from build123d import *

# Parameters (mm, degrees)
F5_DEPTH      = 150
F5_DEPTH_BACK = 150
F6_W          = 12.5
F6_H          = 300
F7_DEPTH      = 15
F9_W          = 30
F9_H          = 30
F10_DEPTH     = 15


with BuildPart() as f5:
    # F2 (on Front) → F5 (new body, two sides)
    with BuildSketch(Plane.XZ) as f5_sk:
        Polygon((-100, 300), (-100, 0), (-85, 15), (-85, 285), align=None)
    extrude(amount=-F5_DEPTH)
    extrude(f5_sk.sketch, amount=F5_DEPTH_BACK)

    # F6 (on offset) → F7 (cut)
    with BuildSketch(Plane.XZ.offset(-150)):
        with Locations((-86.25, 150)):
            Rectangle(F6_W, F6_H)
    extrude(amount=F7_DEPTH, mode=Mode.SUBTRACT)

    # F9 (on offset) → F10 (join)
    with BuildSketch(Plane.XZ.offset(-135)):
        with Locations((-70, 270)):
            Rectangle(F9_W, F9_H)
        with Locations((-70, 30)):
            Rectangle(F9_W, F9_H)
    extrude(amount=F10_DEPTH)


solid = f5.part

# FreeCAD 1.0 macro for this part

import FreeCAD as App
import Part
import Sketcher

V = App.Vector
Q = App.Units.Quantity

doc = App.newDocument("Part")
params = doc.addObject("Spreadsheet::Sheet", "Params")
for row, (alias, value) in enumerate([
    ("sketch1_height", "300 mm"),
    ("sketch1_height2", "270 mm"),
    ("pad1_length", "150 mm"),
    ("pad1_length2", "150 mm"),
    ("sketch2_height", "300 mm"),
    ("sketch2_width", "12.5 mm"),
    ("pocket1_length", "15 mm"),
    ("sketch3_width", "30 mm"),
    ("pad2_length", "15 mm"),
], start=1):
    params.set(f"A{row}", alias)
    params.set(f"B{row}", "=" + value)
    params.setAlias(f"B{row}", alias)

body = doc.addObject("PartDesign::Body", "Body")

sketch1 = body.newObject("Sketcher::SketchObject", "Sketch")
sketch1.AttachmentSupport = (doc.getObject("XZ_Plane"), [""])
sketch1.MapMode = "FlatFace"
sketch1.addGeometry(Part.LineSegment(V(-100, 300, 0), V(-100, 0, 0)), False)
sketch1.addGeometry(Part.LineSegment(V(-100, 0, 0), V(-85, 15, 0)), False)
sketch1.addGeometry(Part.LineSegment(V(-85, 15, 0), V(-85, 285, 0)), False)
sketch1.addGeometry(Part.LineSegment(V(-85, 285, 0), V(-100, 300, 0)), False)
sketch1.addConstraint(Sketcher.Constraint("Coincident", 0, 2, 1, 1))
sketch1.addConstraint(Sketcher.Constraint("Coincident", 1, 2, 2, 1))
sketch1.addConstraint(Sketcher.Constraint("Coincident", 2, 2, 3, 1))
sketch1.addConstraint(Sketcher.Constraint("Coincident", 3, 2, 0, 1))
sketch1.addConstraint(Sketcher.Constraint("Vertical", 0))
sketch1.addConstraint(Sketcher.Constraint("Vertical", 2))
sketch1.addConstraint(Sketcher.Constraint("PointOnObject", 0, 2, -1))
sketch1.addConstraint(Sketcher.Constraint("Perpendicular", 1, 3))
sketch1.addConstraint(Sketcher.Constraint("Equal", 1, 3))
sketch1.addConstraint(Sketcher.Constraint("DistanceY", 0, 2, 0, 1, Q("300 mm")))
sketch1.addConstraint(Sketcher.Constraint("DistanceY", 2, 1, 2, 2, Q("270 mm")))
sketch1.addConstraint(Sketcher.Constraint("DistanceX", 0, 2, -1, 1, Q("100 mm")))
sketch1.setExpression("Constraints[9]", "Params.sketch1_height")
sketch1.setExpression("Constraints[10]", "Params.sketch1_height2")
pad1 = body.newObject("PartDesign::Pad", "Pad")
pad1.Profile = sketch1
pad1.Type = "TwoLengths"
pad1.setExpression("Length", "Params.pad1_length")
pad1.setExpression("Length2", "Params.pad1_length2")
pad1.Reversed = True

sketch2 = body.newObject("Sketcher::SketchObject", "Sketch001")
sketch2.AttachmentSupport = (doc.getObject("XZ_Plane"), [""])
sketch2.MapMode = "FlatFace"
sketch2.AttachmentOffset = App.Placement(V(0, 0, -150), App.Rotation())
sketch2.addGeometry(Part.LineSegment(V(-92, 300, 0), V(-92, 0, 0)), False)
sketch2.addGeometry(Part.LineSegment(V(-92, 0, 0), V(-80, 0, 0)), False)
sketch2.addGeometry(Part.LineSegment(V(-80, 0, 0), V(-80, 300, 0)), False)
sketch2.addGeometry(Part.LineSegment(V(-80, 300, 0), V(-92, 300, 0)), False)
sketch2.addConstraint(Sketcher.Constraint("Coincident", 0, 2, 1, 1))
sketch2.addConstraint(Sketcher.Constraint("Coincident", 1, 2, 2, 1))
sketch2.addConstraint(Sketcher.Constraint("Coincident", 2, 2, 3, 1))
sketch2.addConstraint(Sketcher.Constraint("Coincident", 3, 2, 0, 1))
sketch2.addConstraint(Sketcher.Constraint("Vertical", 0))
sketch2.addConstraint(Sketcher.Constraint("Horizontal", 1))
sketch2.addConstraint(Sketcher.Constraint("Vertical", 2))
sketch2.addConstraint(Sketcher.Constraint("Horizontal", 3))
sketch2.addConstraint(Sketcher.Constraint("PointOnObject", 0, 2, -1))
sketch2.addConstraint(Sketcher.Constraint("DistanceY", 0, 2, 0, 1, Q("300 mm")))
sketch2.addConstraint(Sketcher.Constraint("DistanceX", 1, 1, 1, 2, Q("12.5 mm")))
sketch2.addConstraint(Sketcher.Constraint("DistanceX", 1, 2, -1, 1, Q("80 mm")))
sketch2.setExpression("Constraints[9]", "Params.sketch2_height")
sketch2.setExpression("Constraints[10]", "Params.sketch2_width")
pocket1 = body.newObject("PartDesign::Pocket", "Pocket")
pocket1.Profile = sketch2
pocket1.setExpression("Length", "Params.pocket1_length")
pocket1.Reversed = True

sketch3 = body.newObject("Sketcher::SketchObject", "Sketch002")
sketch3.AttachmentSupport = (doc.getObject("XZ_Plane"), [""])
sketch3.MapMode = "FlatFace"
sketch3.AttachmentOffset = App.Placement(V(0, 0, -135), App.Rotation())
sketch3.addGeometry(Part.LineSegment(V(-85, 285, 0), V(-85, 255, 0)), False)
sketch3.addGeometry(Part.LineSegment(V(-85, 255, 0), V(-55, 255, 0)), False)
sketch3.addGeometry(Part.LineSegment(V(-55, 255, 0), V(-55, 285, 0)), False)
sketch3.addGeometry(Part.LineSegment(V(-55, 285, 0), V(-85, 285, 0)), False)
sketch3.addGeometry(Part.LineSegment(V(-85, 45, 0), V(-85, 15, 0)), False)
sketch3.addGeometry(Part.LineSegment(V(-85, 15, 0), V(-55, 15, 0)), False)
sketch3.addGeometry(Part.LineSegment(V(-55, 15, 0), V(-55, 45, 0)), False)
sketch3.addGeometry(Part.LineSegment(V(-55, 45, 0), V(-85, 45, 0)), False)
sketch3.addConstraint(Sketcher.Constraint("Coincident", 0, 2, 1, 1))
sketch3.addConstraint(Sketcher.Constraint("Coincident", 1, 2, 2, 1))
sketch3.addConstraint(Sketcher.Constraint("Coincident", 2, 2, 3, 1))
sketch3.addConstraint(Sketcher.Constraint("Coincident", 3, 2, 0, 1))
sketch3.addConstraint(Sketcher.Constraint("Coincident", 4, 2, 5, 1))
sketch3.addConstraint(Sketcher.Constraint("Coincident", 5, 2, 6, 1))
sketch3.addConstraint(Sketcher.Constraint("Coincident", 6, 2, 7, 1))
sketch3.addConstraint(Sketcher.Constraint("Coincident", 7, 2, 4, 1))
sketch3.addConstraint(Sketcher.Constraint("Vertical", 0))
sketch3.addConstraint(Sketcher.Constraint("Horizontal", 1))
sketch3.addConstraint(Sketcher.Constraint("Vertical", 2))
sketch3.addConstraint(Sketcher.Constraint("Horizontal", 3))
sketch3.addConstraint(Sketcher.Constraint("Vertical", 4))
sketch3.addConstraint(Sketcher.Constraint("Horizontal", 5))
sketch3.addConstraint(Sketcher.Constraint("Vertical", 6))
sketch3.addConstraint(Sketcher.Constraint("Horizontal", 7))
sketch3.addConstraint(Sketcher.Constraint("Vertical", 3, 2, 4, 2))
sketch3.addConstraint(Sketcher.Constraint("Vertical", 2, 2, 5, 2))
sketch3.addConstraint(Sketcher.Constraint("Equal", 7, 0))
sketch3.addConstraint(Sketcher.Constraint("Equal", 2, 4))
sketch3.addConstraint(Sketcher.Constraint("DistanceX", 1, 1, 1, 2, Q("30 mm")))
sketch3.addConstraint(Sketcher.Constraint("DistanceX", 0, 2, -1, 1, Q("85 mm")))
sketch3.addConstraint(Sketcher.Constraint("DistanceY", -1, 1, 0, 2, Q("255 mm")))
sketch3.addConstraint(Sketcher.Constraint("DistanceY", -1, 1, 4, 2, Q("15 mm")))
sketch3.setExpression("Constraints[20]", "Params.sketch3_width")
pad2 = body.newObject("PartDesign::Pad", "Pad001")
pad2.Profile = sketch3
pad2.setExpression("Length", "Params.pad2_length")

doc.recompute()
